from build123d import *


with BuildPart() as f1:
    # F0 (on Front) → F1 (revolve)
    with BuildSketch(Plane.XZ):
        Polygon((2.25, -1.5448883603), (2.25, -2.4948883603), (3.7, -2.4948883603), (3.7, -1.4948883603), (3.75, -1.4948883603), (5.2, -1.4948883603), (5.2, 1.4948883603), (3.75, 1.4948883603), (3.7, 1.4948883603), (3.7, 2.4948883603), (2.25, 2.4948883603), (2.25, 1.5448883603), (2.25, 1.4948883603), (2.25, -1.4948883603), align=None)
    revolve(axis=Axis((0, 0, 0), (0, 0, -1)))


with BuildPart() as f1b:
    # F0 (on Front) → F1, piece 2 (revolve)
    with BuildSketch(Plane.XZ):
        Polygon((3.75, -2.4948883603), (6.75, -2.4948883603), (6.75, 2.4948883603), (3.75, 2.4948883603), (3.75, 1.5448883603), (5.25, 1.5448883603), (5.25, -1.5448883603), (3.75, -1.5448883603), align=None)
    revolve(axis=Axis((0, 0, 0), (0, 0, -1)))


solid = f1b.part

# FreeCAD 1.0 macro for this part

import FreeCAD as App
import Part
import Sketcher

V = App.Vector
Q = App.Units.Quantity

doc = App.newDocument("Part")
body = doc.addObject("PartDesign::Body", "Body")

sketch1 = doc.addObject("Sketcher::SketchObject", "Sketch")
body.addObject(sketch1)
sketch1.AttachmentSupport = (doc.XZ_Plane, [""])
sketch1.MapMode = "FlatFace"
sketch1.addGeometry([
    Part.LineSegment(V(2.25, -2.494888, 0), V(3.7, -2.494888, 0)),
    Part.LineSegment(V(3.7, -2.494888, 0), V(3.7, -1.494888, 0)),
    Part.LineSegment(V(3.7, -1.494888, 0), V(5.2, -1.494888, 0)),
    Part.LineSegment(V(5.2, -1.494888, 0), V(5.2, 1.494888, 0)),
    Part.LineSegment(V(5.2, 1.494888, 0), V(3.7, 1.494888, 0)),
    Part.LineSegment(V(3.7, 1.494888, 0), V(3.7, 2.494888, 0)),
    Part.LineSegment(V(3.7, 2.494888, 0), V(2.25, 2.494888, 0)),
    Part.LineSegment(V(2.25, 2.494888, 0), V(2.25, -2.494888, 0)),
], False)
sketch1.addConstraint([
    Sketcher.Constraint("Coincident", 0, 2, 1, 1),
    Sketcher.Constraint("Coincident", 1, 2, 2, 1),
    Sketcher.Constraint("Coincident", 2, 2, 3, 1),
    Sketcher.Constraint("Coincident", 3, 2, 4, 1),
    Sketcher.Constraint("Coincident", 4, 2, 5, 1),
    Sketcher.Constraint("Coincident", 5, 2, 6, 1),
    Sketcher.Constraint("Coincident", 6, 2, 7, 1),
    Sketcher.Constraint("Coincident", 7, 2, 0, 1),
    Sketcher.Constraint("Horizontal", 0),
    Sketcher.Constraint("Vertical", 1),
    Sketcher.Constraint("Horizontal", 2),
    Sketcher.Constraint("Vertical", 3),
    Sketcher.Constraint("Horizontal", 4),
    Sketcher.Constraint("Vertical", 5),
    Sketcher.Constraint("Horizontal", 6),
    Sketcher.Constraint("Vertical", 7),
    Sketcher.Constraint("Symmetric", 1, 2, 4, 2, -1),
    Sketcher.Constraint("Equal", 1, 5),
    Sketcher.Constraint("DistanceY", 1, 1, 1, 2, Q("1 mm")),
    Sketcher.Constraint("DistanceX", 2, 1, 2, 2, Q("1.5 mm")),
    Sketcher.Constraint("DistanceX", 0, 1, 0, 2, Q("1.45 mm")),
    Sketcher.Constraint("DistanceX", -1, 1, 0, 2, Q("3.7 mm")),
    Sketcher.Constraint("DistanceY", 3, 1, 3, 2, Q("2.989777 mm")),
])
revolution = doc.addObject("PartDesign::Revolution", "Revolution")
body.addObject(revolution)
revolution.Profile = sketch1
revolution.ReferenceAxis = (sketch1, ["V_Axis"])
revolution.Angle = 360
body2 = doc.addObject("PartDesign::Body", "Body001")

sketch2 = doc.addObject("Sketcher::SketchObject", "Sketch001")
body2.addObject(sketch2)
sketch2.AttachmentSupport = (doc.getObject("XZ_Plane001"), [""])
sketch2.MapMode = "FlatFace"
sketch2.addGeometry([
    Part.LineSegment(V(3.75, -2.494888, 0), V(6.75, -2.494888, 0)),
    Part.LineSegment(V(6.75, -2.494888, 0), V(6.75, 2.494888, 0)),
    Part.LineSegment(V(6.75, 2.494888, 0), V(3.75, 2.494888, 0)),
    Part.LineSegment(V(3.75, 2.494888, 0), V(3.75, 1.544888, 0)),
    Part.LineSegment(V(3.75, 1.544888, 0), V(5.25, 1.544888, 0)),
    Part.LineSegment(V(5.25, 1.544888, 0), V(5.25, -1.544888, 0)),
    Part.LineSegment(V(5.25, -1.544888, 0), V(3.75, -1.544888, 0)),
    Part.LineSegment(V(3.75, -1.544888, 0), V(3.75, -2.494888, 0)),
], False)
sketch2.addConstraint([
    Sketcher.Constraint("Coincident", 0, 2, 1, 1),
    Sketcher.Constraint("Coincident", 1, 2, 2, 1),
    Sketcher.Constraint("Coincident", 2, 2, 3, 1),
    Sketcher.Constraint("Coincident", 3, 2, 4, 1),
    Sketcher.Constraint("Coincident", 4, 2, 5, 1),
    Sketcher.Constraint("Coincident", 5, 2, 6, 1),
    Sketcher.Constraint("Coincident", 6, 2, 7, 1),
    Sketcher.Constraint("Coincident", 7, 2, 0, 1),
    Sketcher.Constraint("Horizontal", 0),
    Sketcher.Constraint("Vertical", 1),
    Sketcher.Constraint("Horizontal", 2),
    Sketcher.Constraint("Vertical", 3),
    Sketcher.Constraint("Horizontal", 4),
    Sketcher.Constraint("Vertical", 5),
    Sketcher.Constraint("Horizontal", 6),
    Sketcher.Constraint("Vertical", 7),
    Sketcher.Constraint("Symmetric", 3, 2, 6, 2, -1),
    Sketcher.Constraint("Equal", 3, 7),
    Sketcher.Constraint("DistanceX", 0, 1, 0, 2, Q("3 mm")),
    Sketcher.Constraint("DistanceX", 4, 1, 4, 2, Q("1.5 mm")),
    Sketcher.Constraint("DistanceY", 3, 2, 3, 1, Q("0.95 mm")),
    Sketcher.Constraint("DistanceX", -1, 1, 0, 2, Q("6.75 mm")),
    Sketcher.Constraint("DistanceY", 1, 1, 1, 2, Q("4.989777 mm")),
])
revolution2 = doc.addObject("PartDesign::Revolution", "Revolution001")
body2.addObject(revolution2)
revolution2.Profile = sketch2
revolution2.ReferenceAxis = (sketch2, ["V_Axis"])
revolution2.Angle = 360
body.Visibility = False

doc.recompute()
